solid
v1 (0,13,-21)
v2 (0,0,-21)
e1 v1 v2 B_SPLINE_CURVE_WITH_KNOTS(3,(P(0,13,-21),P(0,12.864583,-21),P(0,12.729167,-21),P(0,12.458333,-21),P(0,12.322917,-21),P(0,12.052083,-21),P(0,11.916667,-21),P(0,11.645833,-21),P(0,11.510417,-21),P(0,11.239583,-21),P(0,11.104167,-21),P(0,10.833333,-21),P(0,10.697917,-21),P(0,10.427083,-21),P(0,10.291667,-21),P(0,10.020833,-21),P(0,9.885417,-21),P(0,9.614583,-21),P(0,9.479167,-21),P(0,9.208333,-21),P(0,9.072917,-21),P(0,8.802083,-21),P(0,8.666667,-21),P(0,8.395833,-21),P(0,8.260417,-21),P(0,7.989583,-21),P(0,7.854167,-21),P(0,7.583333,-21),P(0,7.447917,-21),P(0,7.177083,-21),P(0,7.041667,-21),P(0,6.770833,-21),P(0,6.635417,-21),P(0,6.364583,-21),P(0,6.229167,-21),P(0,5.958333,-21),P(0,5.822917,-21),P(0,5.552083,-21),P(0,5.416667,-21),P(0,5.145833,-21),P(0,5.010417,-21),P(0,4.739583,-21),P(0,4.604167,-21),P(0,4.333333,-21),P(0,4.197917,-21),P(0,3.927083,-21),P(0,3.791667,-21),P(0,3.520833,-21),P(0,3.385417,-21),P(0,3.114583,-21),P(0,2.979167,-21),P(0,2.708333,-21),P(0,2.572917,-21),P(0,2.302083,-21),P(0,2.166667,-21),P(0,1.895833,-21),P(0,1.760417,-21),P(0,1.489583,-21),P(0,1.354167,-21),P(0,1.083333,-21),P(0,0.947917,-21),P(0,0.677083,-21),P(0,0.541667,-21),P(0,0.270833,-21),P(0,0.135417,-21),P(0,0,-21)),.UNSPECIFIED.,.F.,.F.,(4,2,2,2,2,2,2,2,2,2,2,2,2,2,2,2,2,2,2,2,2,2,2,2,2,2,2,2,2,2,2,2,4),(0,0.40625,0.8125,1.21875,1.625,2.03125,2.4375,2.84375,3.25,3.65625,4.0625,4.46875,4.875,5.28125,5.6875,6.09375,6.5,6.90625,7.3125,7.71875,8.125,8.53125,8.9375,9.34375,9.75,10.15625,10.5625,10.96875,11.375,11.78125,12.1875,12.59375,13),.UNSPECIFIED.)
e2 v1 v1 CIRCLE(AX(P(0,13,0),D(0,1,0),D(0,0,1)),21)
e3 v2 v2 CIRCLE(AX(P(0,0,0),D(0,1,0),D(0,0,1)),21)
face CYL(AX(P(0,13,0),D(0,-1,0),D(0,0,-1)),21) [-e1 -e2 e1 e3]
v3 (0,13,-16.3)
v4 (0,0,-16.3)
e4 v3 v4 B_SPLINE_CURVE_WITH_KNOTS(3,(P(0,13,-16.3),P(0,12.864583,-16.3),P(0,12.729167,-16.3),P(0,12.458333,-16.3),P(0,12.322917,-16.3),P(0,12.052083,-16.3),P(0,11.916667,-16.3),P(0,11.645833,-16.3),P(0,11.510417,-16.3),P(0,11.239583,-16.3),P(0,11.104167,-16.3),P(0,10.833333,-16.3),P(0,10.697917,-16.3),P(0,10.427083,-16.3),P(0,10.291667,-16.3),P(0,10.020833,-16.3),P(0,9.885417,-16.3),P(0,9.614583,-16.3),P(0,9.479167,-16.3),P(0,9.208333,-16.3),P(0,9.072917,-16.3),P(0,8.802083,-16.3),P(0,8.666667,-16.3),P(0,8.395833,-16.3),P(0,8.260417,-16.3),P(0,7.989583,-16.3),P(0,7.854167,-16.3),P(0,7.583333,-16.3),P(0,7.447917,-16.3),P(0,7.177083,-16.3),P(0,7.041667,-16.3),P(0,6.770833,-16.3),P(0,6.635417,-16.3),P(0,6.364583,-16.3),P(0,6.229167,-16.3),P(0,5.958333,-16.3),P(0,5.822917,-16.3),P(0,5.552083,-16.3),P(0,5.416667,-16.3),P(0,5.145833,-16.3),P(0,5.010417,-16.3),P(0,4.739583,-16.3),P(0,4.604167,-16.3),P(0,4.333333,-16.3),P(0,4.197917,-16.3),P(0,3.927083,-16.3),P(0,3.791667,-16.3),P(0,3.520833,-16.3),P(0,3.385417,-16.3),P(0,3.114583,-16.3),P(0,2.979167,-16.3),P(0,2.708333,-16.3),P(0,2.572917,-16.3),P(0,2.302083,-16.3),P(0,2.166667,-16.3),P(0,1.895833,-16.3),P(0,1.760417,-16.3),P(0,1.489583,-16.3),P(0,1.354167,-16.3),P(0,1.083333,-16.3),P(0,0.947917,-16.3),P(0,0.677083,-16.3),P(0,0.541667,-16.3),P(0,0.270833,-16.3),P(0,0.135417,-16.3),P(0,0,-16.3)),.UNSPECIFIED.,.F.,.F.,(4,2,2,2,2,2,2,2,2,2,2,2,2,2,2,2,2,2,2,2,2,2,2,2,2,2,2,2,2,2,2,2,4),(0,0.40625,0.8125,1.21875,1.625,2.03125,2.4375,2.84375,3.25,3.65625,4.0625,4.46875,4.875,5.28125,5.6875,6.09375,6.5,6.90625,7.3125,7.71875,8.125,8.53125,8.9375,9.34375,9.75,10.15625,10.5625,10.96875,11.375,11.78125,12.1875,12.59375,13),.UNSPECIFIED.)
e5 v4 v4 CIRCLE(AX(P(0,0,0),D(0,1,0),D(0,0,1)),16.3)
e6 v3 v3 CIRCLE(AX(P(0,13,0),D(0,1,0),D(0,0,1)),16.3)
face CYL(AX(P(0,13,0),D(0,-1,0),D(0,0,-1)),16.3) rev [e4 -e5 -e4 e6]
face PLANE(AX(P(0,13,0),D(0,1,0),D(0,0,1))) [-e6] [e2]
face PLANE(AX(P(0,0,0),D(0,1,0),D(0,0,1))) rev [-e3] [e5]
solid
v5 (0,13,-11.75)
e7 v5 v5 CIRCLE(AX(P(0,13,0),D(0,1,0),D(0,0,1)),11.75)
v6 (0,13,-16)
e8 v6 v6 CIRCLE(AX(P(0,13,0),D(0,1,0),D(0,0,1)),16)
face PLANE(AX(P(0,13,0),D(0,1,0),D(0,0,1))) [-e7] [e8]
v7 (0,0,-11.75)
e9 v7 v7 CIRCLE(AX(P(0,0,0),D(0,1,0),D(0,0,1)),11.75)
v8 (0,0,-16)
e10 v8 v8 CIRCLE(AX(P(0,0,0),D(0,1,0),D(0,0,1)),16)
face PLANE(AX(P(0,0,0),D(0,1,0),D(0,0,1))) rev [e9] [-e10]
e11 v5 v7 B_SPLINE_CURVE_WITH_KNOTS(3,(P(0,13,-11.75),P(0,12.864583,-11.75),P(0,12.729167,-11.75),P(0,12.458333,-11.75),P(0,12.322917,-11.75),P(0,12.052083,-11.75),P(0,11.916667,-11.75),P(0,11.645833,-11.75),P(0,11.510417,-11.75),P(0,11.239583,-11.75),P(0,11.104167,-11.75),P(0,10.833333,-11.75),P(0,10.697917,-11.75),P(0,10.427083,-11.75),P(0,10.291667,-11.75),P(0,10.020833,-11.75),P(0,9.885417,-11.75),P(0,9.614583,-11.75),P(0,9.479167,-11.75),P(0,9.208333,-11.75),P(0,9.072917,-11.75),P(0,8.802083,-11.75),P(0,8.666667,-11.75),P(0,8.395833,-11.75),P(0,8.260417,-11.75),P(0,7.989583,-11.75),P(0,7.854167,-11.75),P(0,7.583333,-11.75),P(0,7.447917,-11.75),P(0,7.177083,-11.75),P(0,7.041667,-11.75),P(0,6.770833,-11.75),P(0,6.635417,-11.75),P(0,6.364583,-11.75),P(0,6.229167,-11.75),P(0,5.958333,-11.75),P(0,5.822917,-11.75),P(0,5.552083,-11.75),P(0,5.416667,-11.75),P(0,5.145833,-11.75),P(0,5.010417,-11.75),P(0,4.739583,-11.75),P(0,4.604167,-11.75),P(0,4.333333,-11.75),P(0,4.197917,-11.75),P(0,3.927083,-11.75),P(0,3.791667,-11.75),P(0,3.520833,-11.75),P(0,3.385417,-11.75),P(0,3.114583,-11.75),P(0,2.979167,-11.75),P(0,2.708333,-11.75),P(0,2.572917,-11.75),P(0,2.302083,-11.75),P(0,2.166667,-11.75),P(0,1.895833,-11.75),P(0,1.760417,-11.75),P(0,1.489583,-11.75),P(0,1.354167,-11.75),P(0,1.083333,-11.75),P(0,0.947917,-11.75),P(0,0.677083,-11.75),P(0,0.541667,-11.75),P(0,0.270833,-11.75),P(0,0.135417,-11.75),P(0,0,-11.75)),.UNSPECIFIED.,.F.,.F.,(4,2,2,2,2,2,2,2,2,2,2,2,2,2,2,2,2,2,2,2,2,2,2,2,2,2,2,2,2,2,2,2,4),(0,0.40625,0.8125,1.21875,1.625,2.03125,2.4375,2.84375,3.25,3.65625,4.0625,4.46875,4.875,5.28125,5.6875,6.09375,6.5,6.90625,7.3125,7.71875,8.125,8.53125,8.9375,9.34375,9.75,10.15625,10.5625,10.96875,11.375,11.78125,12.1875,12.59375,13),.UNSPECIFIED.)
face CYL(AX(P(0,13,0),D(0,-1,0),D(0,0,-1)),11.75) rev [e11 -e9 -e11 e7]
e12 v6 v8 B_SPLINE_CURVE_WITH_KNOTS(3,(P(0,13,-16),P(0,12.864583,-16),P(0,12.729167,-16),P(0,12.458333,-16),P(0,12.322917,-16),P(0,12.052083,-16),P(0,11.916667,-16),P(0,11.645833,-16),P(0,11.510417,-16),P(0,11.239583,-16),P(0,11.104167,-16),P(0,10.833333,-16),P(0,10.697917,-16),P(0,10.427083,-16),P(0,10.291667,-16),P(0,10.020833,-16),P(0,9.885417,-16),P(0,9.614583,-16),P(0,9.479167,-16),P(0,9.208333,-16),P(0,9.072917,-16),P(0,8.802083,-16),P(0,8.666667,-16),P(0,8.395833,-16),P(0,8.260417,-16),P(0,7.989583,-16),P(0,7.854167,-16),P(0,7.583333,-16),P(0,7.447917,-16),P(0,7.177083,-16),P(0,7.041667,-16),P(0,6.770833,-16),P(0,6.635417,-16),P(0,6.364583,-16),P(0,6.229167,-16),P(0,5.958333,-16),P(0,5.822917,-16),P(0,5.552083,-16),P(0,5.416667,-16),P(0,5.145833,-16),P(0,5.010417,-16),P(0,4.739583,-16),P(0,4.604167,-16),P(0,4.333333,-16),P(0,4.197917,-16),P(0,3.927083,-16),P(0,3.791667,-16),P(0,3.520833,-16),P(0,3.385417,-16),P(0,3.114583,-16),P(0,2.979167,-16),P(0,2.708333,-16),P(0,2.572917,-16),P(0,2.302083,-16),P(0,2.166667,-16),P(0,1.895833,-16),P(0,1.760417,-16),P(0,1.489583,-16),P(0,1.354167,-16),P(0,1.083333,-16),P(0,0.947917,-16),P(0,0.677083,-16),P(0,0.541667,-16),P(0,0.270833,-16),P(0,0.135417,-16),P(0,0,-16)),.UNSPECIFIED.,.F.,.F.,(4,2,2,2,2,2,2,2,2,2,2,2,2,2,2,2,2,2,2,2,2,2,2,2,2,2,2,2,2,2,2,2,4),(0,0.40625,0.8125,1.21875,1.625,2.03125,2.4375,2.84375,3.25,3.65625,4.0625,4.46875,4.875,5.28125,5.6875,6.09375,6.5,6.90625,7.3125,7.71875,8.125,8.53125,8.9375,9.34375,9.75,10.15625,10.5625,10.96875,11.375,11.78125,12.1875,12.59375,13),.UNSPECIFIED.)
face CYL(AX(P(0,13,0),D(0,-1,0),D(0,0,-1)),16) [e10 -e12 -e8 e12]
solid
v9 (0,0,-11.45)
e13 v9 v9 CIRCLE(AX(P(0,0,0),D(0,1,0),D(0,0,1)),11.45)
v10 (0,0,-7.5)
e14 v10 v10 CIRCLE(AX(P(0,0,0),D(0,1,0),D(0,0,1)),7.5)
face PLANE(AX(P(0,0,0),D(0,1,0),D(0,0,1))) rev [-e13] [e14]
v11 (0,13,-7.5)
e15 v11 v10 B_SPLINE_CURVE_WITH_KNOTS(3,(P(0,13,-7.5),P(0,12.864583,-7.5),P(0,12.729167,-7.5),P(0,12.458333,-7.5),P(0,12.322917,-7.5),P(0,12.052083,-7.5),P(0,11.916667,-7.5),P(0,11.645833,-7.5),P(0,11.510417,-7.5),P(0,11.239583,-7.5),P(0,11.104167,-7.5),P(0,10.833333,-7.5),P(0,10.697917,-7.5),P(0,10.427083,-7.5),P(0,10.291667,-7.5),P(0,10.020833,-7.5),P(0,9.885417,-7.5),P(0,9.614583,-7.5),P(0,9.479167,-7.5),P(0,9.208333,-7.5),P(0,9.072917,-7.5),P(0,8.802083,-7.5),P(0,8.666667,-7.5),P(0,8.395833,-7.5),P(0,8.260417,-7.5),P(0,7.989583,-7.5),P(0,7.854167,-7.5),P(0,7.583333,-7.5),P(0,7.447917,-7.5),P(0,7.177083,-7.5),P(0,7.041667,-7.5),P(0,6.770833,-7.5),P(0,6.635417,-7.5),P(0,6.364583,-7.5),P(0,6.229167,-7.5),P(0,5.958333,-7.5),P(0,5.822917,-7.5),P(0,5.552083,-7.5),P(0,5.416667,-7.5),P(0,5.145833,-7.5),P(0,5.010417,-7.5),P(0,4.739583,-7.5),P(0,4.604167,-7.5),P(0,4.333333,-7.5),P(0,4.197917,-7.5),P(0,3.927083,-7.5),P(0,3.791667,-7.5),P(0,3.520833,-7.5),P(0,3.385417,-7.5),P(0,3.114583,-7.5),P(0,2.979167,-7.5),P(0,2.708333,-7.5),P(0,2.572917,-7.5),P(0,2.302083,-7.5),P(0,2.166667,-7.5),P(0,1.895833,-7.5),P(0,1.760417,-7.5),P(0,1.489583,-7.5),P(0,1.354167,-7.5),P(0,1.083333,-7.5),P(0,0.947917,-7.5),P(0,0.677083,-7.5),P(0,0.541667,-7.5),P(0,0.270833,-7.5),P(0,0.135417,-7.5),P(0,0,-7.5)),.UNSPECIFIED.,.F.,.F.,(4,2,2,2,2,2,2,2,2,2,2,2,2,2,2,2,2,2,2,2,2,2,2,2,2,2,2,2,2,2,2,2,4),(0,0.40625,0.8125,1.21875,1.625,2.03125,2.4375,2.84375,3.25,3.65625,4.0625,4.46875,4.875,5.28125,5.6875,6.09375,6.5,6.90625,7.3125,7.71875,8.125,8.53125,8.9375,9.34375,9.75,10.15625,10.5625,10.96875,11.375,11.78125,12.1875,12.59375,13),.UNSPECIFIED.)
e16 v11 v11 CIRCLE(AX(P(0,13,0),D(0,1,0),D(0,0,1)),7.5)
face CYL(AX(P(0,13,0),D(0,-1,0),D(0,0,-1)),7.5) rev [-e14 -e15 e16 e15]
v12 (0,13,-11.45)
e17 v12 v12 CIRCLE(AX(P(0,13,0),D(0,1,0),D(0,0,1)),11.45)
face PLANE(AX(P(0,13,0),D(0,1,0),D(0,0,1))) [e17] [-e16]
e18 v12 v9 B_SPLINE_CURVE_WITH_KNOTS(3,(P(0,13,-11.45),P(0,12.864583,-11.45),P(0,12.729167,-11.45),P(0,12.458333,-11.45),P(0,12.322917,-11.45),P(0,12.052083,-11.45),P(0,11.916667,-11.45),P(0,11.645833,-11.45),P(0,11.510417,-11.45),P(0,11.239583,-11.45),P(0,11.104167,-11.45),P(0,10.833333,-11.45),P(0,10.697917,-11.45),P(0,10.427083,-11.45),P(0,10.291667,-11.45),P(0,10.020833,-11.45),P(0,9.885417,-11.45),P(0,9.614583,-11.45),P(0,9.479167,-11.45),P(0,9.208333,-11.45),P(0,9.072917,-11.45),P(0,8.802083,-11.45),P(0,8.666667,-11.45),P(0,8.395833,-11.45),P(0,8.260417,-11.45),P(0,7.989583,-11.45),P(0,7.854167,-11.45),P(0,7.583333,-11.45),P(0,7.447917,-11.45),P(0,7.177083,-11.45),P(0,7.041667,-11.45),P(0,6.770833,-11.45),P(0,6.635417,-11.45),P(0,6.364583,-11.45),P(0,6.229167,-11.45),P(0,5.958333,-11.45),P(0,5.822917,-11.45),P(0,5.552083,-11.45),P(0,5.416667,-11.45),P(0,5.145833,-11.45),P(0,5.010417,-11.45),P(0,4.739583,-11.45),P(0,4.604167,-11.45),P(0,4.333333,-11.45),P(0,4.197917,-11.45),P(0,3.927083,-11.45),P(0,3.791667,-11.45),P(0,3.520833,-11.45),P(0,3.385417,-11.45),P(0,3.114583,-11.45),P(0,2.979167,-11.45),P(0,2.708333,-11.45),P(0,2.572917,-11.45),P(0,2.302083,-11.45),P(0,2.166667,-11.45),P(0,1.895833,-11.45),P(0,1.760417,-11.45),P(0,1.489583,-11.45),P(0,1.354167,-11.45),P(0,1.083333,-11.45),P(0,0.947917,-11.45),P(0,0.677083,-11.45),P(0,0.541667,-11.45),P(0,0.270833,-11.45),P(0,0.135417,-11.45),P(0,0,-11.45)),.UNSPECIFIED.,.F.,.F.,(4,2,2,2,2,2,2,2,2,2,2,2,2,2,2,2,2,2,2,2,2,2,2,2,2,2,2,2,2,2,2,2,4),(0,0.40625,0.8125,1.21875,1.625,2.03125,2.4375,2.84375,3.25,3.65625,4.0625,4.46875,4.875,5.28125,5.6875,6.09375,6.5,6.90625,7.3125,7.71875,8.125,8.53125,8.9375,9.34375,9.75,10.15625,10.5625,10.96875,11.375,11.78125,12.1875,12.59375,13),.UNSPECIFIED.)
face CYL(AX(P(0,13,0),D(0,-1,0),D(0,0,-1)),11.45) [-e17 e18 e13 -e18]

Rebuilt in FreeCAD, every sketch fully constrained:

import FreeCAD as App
import Part
import Sketcher
Q = App.Units.Quantity

doc = App.newDocument("Part")
body = doc.addObject("PartDesign::Body", "Body")

sketch1 = doc.addObject("Sketcher::SketchObject", "Sketch")
body.addObject(sketch1)
sketch1.AttachmentSupport = (doc.XZ_Plane, [""])
sketch1.MapMode = "FlatFace"
sketch1.addGeometry([
    Part.Circle(App.Vector(0, 0, 0), App.Vector(0, 0, 1), 21),
    Part.Circle(App.Vector(0, 0, 0), App.Vector(0, 0, 1), 16),
], False)
sketch1.addConstraint([
    Sketcher.Constraint("Coincident", 0, 3, -1, 1),
    Sketcher.Constraint("Coincident", 1, 3, -1, 1),
    Sketcher.Constraint("Diameter", 0, Q("42 mm")),
    Sketcher.Constraint("Diameter", 1, Q("32.6 mm")),
])
pad1 = doc.addObject("PartDesign::Pad", "Pad")
body.addObject(pad1)
pad1.Profile = sketch1
pad1.Length = 13
pad1.Reversed = True
body2 = doc.addObject("PartDesign::Body", "Body001")

sketch2 = doc.addObject("Sketcher::SketchObject", "Sketch001")
body2.addObject(sketch2)
sketch2.AttachmentSupport = (doc.getObject("XZ_Plane001"), [""])
sketch2.MapMode = "FlatFace"
sketch2.addGeometry([
    Part.Circle(App.Vector(0, 0, 0), App.Vector(0, 0, 1), 16),
    Part.Circle(App.Vector(0, 0, 0), App.Vector(0, 0, 1), 12),
], False)
sketch2.addConstraint([
    Sketcher.Constraint("Coincident", 0, 3, -1, 1),
    Sketcher.Constraint("Coincident", 1, 3, -1, 1),
    Sketcher.Constraint("Diameter", 0, Q("32 mm")),
    Sketcher.Constraint("Diameter", 1, Q("23.5 mm")),
])
pad2 = doc.addObject("PartDesign::Pad", "Pad001")
body2.addObject(pad2)
pad2.Profile = sketch2
pad2.Length = 13
pad2.Reversed = True
body3 = doc.addObject("PartDesign::Body", "Body002")

sketch3 = doc.addObject("Sketcher::SketchObject", "Sketch002")
body3.addObject(sketch3)
sketch3.AttachmentSupport = (doc.getObject("XZ_Plane002"), [""])
sketch3.MapMode = "FlatFace"
sketch3.addGeometry([
    Part.Circle(App.Vector(0, 0, 0), App.Vector(0, 0, 1), 11),
    Part.Circle(App.Vector(0, 0, 0), App.Vector(0, 0, 1), 8),
], False)
sketch3.addConstraint([
    Sketcher.Constraint("Coincident", 0, 3, -1, 1),
    Sketcher.Constraint("Coincident", 1, 3, -1, 1),
    Sketcher.Constraint("Diameter", 1, Q("15 mm")),
    Sketcher.Constraint("Diameter", 0, Q("22.9 mm")),
])
pad3 = doc.addObject("PartDesign::Pad", "Pad002")
body3.addObject(pad3)
pad3.Profile = sketch3
pad3.Length = 13
pad3.Reversed = True

doc.recompute()
